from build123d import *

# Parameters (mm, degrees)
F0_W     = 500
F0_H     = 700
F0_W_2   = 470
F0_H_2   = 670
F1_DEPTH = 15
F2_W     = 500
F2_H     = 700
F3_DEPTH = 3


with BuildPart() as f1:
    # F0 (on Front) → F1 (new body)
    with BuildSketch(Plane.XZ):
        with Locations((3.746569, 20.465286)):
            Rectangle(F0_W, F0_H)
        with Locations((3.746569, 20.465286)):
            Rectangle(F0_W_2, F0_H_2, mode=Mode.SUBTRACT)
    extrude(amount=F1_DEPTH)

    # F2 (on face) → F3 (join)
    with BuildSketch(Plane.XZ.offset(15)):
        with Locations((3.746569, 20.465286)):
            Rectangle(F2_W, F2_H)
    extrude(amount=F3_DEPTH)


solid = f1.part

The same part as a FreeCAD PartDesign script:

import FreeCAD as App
import Part
import Sketcher
from FreeCAD import Vector
Q = App.Units.Quantity


def add_polygon(sketch, points):
    """Adds a closed chain of lines whose ends are joined by coincident constraints."""
    first, n = sketch.GeometryCount, len(points)
    for a, b in zip(points, points[1:] + points[:1]):
        sketch.addGeometry(Part.LineSegment(App.Vector(*a, 0), App.Vector(*b, 0)), False)
    for i in range(n):
        sketch.addConstraint(Sketcher.Constraint("Coincident", first + i, 2, first + (i + 1) % n, 1))

doc = App.newDocument("Part")
params = doc.addObject("Spreadsheet::Sheet", "Params")
for row, (alias, value) in enumerate([
    ("sketch1_width", "500 mm"),
    ("sketch1_width2", "470 mm"),
    ("sketch1_height", "700 mm"),
    ("sketch1_height2", "670 mm"),
    ("pad1_length", "15 mm"),
    ("sketch2_width", "500 mm"),
    ("sketch2_height", "700 mm"),
    ("pad2_length", "3 mm"),
], start=1):
    params.set(f"A{row}", alias)
    params.set(f"B{row}", "=" + value)
    params.setAlias(f"B{row}", alias)

body = doc.addObject("PartDesign::Body", "Body")

sketch1 = body.newObject("Sketcher::SketchObject", "Sketch")
sketch1.AttachmentSupport = (doc.getObject("XZ_Plane"), [""])
sketch1.MapMode = "FlatFace"
add_polygon(sketch1, [(-246, 370), (-246, -330), (254, -330), (254, 370)])
add_polygon(sketch1, [(239, -315), (-231, -315), (-231, 355), (239, 355)])
sketch1.addConstraint(Sketcher.Constraint("Vertical", 0))
sketch1.addConstraint(Sketcher.Constraint("Horizontal", 1))
sketch1.addConstraint(Sketcher.Constraint("Vertical", 2))
sketch1.addConstraint(Sketcher.Constraint("Horizontal", 3))
sketch1.addConstraint(Sketcher.Constraint("Horizontal", 4))
sketch1.addConstraint(Sketcher.Constraint("Vertical", 5))
sketch1.addConstraint(Sketcher.Constraint("Horizontal", 6))
sketch1.addConstraint(Sketcher.Constraint("Vertical", 7))
sketch1.addConstraint(Sketcher.Constraint("DistanceX", 1, 1, 1, 2, Q("500 mm")))
sketch1.addConstraint(Sketcher.Constraint("DistanceX", 4, 2, 4, 1, Q("470 mm")))
sketch1.addConstraint(Sketcher.Constraint("DistanceY", 0, 2, 0, 1, Q("700 mm")))
sketch1.addConstraint(Sketcher.Constraint("DistanceY", 5, 1, 5, 2, Q("670 mm")))
sketch1.addConstraint(Sketcher.Constraint("DistanceX", 0, 2, 4, 2, Q("15 mm")))
sketch1.addConstraint(Sketcher.Constraint("DistanceY", 0, 2, 4, 2, Q("15 mm")))
sketch1.addConstraint(Sketcher.Constraint("DistanceX", 0, 2, -1, 1, Q("246.253431 mm")))
sketch1.addConstraint(Sketcher.Constraint("DistanceY", 0, 2, -1, 1, Q("329.534714 mm")))
sketch1.setExpression("Constraints[16]", "Params.sketch1_width")
sketch1.setExpression("Constraints[17]", "Params.sketch1_width2")
sketch1.setExpression("Constraints[18]", "Params.sketch1_height")
sketch1.setExpression("Constraints[19]", "Params.sketch1_height2")
pad1 = body.newObject("PartDesign::Pad", "Pad")
pad1.Profile = sketch1
pad1.setExpression("Length", "Params.pad1_length")

sketch2 = body.newObject("Sketcher::SketchObject", "Sketch001")
sketch2.AttachmentSupport = (doc.getObject("XZ_Plane"), [""])
sketch2.MapMode = "FlatFace"
sketch2.AttachmentOffset = App.Placement(Vector(0, 0, 15), App.Rotation())
add_polygon(sketch2, [(-246, 370), (-246, -330), (254, -330), (254, 370)])
sketch2.addConstraint(Sketcher.Constraint("Vertical", 0))
sketch2.addConstraint(Sketcher.Constraint("Horizontal", 1))
sketch2.addConstraint(Sketcher.Constraint("Vertical", 2))
sketch2.addConstraint(Sketcher.Constraint("Horizontal", 3))
sketch2.addConstraint(Sketcher.Constraint("DistanceX", 1, 1, 1, 2, Q("500 mm")))
sketch2.addConstraint(Sketcher.Constraint("DistanceY", 0, 2, 0, 1, Q("700 mm")))
sketch2.addConstraint(Sketcher.Constraint("DistanceX", 0, 2, -1, 1, Q("246.253431 mm")))
sketch2.addConstraint(Sketcher.Constraint("DistanceY", 0, 2, -1, 1, Q("329.534714 mm")))
sketch2.setExpression("Constraints[8]", "Params.sketch2_width")
sketch2.setExpression("Constraints[9]", "Params.sketch2_height")
pad2 = body.newObject("PartDesign::Pad", "Pad001")
pad2.Profile = sketch2
pad2.setExpression("Length", "Params.pad2_length")

doc.recompute()
